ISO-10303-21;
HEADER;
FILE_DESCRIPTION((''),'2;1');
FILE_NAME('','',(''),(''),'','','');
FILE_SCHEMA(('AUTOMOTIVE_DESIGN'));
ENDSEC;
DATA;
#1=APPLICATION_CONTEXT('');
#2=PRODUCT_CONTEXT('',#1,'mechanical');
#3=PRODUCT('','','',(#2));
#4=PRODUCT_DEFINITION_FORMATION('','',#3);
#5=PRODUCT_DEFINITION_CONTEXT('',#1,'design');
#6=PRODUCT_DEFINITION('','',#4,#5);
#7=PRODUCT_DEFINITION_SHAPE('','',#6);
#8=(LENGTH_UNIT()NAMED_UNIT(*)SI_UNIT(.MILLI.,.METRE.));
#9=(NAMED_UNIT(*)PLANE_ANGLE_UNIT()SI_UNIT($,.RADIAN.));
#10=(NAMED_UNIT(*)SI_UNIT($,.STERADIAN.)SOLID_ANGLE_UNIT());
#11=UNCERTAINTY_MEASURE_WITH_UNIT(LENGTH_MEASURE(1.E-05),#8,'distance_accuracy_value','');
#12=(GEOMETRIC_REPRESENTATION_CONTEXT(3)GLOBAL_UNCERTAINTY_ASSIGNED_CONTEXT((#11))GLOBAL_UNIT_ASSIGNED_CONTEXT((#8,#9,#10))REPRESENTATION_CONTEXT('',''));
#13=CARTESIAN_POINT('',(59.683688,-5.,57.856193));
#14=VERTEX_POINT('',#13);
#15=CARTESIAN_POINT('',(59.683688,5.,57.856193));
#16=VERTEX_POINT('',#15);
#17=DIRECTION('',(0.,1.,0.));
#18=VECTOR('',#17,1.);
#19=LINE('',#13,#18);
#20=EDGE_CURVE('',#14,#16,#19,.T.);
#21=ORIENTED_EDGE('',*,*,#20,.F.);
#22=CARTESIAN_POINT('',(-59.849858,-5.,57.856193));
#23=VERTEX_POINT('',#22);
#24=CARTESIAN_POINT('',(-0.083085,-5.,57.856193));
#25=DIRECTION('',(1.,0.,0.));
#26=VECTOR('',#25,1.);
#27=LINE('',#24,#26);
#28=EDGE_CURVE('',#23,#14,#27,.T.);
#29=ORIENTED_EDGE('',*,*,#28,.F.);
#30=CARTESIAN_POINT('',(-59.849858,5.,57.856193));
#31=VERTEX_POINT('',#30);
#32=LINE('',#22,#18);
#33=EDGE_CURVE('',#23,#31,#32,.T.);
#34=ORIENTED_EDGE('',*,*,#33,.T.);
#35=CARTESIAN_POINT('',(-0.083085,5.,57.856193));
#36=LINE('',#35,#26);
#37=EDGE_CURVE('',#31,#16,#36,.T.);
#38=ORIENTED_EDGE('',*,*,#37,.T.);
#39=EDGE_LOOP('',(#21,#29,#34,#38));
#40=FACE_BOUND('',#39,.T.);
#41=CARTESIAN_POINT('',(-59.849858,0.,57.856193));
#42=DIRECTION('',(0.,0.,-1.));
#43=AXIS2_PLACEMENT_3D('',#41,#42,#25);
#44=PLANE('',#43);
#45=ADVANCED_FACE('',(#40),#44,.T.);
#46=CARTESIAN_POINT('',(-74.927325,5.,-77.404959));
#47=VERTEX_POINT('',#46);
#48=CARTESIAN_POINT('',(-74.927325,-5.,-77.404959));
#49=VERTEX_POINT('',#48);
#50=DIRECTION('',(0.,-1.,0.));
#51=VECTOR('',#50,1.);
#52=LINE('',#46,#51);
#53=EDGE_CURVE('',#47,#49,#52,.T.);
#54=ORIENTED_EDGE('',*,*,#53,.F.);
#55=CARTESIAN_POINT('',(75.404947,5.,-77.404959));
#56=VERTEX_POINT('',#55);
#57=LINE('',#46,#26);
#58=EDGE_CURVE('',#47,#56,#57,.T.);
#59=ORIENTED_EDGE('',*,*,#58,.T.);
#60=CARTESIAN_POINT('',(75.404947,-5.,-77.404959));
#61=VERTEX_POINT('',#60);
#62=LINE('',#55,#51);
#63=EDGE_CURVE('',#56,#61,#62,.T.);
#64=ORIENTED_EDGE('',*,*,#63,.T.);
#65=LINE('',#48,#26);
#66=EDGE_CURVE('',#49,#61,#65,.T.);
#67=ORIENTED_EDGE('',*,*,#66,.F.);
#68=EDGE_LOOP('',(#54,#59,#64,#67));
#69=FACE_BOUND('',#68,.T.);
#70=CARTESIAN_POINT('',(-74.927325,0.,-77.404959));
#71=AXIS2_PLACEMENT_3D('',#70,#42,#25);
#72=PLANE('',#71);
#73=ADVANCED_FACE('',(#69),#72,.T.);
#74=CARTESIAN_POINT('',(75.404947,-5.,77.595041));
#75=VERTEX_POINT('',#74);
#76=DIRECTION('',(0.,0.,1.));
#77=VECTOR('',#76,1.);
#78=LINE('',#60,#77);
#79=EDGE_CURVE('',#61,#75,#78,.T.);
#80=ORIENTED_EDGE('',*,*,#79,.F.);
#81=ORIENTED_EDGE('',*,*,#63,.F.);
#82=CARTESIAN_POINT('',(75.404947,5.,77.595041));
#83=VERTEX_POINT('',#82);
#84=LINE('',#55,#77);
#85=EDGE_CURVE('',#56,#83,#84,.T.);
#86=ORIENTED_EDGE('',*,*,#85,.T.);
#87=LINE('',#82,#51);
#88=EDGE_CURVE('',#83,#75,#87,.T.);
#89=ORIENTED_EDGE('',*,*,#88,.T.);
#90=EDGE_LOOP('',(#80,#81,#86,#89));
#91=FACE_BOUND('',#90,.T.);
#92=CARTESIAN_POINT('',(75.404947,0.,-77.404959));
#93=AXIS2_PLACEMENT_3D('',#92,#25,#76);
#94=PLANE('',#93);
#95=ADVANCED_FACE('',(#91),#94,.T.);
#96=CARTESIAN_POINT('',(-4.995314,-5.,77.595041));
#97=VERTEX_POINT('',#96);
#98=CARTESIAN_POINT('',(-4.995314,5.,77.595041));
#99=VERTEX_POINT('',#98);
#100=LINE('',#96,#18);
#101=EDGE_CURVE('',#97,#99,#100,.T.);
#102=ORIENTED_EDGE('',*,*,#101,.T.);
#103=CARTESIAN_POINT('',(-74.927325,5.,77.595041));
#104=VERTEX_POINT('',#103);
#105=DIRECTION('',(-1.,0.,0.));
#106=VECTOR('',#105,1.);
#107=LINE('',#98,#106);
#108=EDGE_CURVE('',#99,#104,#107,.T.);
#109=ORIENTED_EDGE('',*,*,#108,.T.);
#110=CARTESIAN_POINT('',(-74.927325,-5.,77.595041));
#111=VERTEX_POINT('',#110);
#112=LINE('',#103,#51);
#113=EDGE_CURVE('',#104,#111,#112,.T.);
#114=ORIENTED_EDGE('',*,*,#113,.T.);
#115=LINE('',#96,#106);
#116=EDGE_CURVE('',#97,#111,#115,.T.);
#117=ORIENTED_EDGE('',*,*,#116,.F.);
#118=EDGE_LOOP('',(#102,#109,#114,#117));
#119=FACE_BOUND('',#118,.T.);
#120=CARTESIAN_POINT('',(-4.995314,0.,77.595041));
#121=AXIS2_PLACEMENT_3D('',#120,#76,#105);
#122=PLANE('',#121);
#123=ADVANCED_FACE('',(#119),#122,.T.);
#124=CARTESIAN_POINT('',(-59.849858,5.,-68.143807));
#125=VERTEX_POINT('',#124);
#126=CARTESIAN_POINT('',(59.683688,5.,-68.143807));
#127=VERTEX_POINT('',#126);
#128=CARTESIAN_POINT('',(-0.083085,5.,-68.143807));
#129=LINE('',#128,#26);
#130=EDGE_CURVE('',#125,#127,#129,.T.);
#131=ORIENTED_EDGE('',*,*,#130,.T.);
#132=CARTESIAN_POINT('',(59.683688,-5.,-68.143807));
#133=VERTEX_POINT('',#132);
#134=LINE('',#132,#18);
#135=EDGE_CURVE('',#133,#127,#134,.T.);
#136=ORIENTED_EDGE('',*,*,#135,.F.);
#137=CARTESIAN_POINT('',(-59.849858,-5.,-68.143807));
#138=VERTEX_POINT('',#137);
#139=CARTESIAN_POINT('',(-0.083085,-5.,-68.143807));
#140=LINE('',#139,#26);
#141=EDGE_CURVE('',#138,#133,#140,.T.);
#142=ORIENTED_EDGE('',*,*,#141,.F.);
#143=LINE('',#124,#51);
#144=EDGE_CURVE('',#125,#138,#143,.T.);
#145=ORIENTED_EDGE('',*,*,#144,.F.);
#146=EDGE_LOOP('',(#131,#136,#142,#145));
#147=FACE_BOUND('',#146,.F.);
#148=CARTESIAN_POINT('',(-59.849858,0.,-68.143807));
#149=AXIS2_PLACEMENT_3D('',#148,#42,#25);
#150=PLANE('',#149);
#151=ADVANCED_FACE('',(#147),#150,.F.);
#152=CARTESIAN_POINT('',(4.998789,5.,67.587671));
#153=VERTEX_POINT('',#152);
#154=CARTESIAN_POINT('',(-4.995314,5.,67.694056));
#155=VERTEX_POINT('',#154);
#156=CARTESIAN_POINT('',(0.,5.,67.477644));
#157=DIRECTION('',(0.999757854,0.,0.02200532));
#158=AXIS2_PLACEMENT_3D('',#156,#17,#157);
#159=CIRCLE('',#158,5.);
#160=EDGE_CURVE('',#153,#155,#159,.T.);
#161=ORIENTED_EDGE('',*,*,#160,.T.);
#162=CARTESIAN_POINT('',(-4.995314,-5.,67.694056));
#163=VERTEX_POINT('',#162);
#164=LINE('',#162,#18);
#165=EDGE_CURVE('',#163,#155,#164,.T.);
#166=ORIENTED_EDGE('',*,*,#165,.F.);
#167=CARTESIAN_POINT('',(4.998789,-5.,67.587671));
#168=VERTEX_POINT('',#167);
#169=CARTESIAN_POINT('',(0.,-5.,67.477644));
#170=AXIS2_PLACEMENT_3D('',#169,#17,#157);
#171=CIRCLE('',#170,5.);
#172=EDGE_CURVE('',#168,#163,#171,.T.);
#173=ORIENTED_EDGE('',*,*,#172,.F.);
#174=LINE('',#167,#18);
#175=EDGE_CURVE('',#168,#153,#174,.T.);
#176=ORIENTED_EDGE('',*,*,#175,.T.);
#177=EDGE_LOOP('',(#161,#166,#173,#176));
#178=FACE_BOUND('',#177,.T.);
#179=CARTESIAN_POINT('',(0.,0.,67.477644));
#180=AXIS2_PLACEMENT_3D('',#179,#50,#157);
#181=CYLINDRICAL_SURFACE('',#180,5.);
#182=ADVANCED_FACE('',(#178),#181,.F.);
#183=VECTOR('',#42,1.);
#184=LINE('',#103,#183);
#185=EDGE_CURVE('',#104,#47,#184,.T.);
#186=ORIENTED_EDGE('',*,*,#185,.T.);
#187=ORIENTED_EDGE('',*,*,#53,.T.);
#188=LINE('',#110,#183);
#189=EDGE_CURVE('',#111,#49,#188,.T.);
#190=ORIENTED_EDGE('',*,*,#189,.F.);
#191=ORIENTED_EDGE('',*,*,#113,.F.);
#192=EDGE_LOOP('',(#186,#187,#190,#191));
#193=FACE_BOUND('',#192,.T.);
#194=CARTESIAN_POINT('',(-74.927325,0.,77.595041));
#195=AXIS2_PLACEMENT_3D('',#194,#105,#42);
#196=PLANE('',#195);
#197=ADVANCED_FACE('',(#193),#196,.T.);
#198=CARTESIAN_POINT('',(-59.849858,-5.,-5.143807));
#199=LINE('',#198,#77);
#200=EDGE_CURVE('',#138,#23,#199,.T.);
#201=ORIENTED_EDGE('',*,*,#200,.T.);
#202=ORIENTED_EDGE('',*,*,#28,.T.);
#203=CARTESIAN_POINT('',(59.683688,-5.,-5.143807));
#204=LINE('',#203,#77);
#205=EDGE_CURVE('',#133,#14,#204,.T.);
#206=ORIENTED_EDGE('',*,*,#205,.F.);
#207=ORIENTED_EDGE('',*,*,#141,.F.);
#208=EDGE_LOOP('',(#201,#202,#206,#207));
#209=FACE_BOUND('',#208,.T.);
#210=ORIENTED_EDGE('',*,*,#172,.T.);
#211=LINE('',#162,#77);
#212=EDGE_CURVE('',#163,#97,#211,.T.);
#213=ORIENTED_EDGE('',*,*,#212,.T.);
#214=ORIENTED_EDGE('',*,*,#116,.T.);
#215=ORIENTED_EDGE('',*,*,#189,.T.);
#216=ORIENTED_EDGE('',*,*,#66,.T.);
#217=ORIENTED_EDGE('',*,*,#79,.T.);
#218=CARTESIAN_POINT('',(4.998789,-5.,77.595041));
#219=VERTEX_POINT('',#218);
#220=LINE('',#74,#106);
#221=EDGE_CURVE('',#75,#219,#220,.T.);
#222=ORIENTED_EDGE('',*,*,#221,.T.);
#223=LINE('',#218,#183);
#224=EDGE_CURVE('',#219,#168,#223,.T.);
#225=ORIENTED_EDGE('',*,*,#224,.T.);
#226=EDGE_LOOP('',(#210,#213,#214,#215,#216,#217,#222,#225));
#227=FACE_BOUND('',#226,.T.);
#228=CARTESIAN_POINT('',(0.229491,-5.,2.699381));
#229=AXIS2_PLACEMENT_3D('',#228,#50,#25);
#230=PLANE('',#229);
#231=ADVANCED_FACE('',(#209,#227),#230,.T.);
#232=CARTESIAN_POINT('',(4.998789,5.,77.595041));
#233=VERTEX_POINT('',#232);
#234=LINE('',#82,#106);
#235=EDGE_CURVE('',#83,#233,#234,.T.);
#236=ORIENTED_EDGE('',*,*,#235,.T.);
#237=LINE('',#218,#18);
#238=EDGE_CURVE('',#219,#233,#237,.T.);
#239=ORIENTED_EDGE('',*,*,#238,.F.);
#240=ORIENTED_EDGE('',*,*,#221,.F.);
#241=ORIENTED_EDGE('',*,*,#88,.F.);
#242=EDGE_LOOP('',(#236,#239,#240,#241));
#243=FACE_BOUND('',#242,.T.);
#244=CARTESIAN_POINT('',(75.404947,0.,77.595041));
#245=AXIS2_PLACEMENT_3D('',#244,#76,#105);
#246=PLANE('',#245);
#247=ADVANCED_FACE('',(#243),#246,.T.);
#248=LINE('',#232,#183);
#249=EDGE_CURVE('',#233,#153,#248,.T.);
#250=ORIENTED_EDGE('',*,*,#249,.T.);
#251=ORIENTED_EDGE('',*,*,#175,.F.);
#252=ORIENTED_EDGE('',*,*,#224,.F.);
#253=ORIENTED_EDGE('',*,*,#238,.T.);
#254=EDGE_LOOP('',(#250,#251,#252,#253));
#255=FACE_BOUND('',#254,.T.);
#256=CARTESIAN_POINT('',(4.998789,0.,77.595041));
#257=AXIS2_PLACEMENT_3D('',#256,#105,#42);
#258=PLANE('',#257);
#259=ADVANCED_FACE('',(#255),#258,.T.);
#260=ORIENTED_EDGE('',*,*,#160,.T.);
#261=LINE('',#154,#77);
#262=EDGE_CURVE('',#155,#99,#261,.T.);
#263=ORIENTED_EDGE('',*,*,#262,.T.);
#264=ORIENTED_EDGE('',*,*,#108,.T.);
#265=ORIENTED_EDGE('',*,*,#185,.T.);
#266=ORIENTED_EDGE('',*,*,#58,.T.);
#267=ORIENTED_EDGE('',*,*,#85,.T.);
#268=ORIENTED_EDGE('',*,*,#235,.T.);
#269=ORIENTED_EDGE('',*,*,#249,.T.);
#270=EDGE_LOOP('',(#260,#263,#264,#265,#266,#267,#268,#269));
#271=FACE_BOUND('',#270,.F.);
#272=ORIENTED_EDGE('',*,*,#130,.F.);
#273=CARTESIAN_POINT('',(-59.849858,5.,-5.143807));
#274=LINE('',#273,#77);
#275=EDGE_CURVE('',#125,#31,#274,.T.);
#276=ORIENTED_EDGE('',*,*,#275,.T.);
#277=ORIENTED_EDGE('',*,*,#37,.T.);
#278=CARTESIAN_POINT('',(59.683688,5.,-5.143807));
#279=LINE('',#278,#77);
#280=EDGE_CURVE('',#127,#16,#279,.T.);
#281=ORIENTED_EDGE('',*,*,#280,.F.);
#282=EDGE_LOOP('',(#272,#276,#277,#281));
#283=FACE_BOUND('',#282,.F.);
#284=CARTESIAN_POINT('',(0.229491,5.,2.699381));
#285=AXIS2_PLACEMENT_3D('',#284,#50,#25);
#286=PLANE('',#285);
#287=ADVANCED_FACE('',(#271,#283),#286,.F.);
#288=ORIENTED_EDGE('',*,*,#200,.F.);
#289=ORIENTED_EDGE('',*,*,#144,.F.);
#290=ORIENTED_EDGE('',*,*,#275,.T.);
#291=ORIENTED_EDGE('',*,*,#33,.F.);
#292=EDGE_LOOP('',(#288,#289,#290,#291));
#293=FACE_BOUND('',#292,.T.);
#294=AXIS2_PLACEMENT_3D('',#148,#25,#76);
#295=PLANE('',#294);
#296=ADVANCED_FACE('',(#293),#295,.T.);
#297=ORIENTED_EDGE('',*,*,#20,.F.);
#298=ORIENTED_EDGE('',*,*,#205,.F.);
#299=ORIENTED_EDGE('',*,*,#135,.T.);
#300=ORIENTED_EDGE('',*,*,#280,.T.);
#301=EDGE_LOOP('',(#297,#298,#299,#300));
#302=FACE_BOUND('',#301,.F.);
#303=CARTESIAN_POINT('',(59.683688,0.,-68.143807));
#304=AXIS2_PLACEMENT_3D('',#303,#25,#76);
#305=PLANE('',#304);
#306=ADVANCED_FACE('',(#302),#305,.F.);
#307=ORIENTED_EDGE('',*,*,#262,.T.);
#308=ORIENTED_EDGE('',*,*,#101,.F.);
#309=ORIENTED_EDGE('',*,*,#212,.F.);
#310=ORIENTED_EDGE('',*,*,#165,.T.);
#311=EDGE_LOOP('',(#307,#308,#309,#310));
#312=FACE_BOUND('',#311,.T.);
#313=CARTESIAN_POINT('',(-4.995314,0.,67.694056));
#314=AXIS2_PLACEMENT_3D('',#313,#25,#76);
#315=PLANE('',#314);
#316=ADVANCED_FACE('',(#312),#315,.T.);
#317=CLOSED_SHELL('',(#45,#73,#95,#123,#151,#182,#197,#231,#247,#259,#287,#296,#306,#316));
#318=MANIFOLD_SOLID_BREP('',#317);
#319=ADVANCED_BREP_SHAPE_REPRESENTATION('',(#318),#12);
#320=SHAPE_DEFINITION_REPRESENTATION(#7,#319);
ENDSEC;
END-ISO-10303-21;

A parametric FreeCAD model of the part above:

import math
import FreeCAD as App
import Part
import Sketcher

doc = App.newDocument("Part")
body = doc.addObject("PartDesign::Body", "Body")

# Sketch on XZ plane
sketch1 = doc.addObject("Sketcher::SketchObject", "Sketch")
body.addObject(sketch1)
sketch1.AttachmentSupport = (doc.XZ_Plane, [""])
sketch1.MapMode = "FlatFace"
sketch1.addGeometry([
    Part.LineSegment(App.Vector(-4.995314, 77.595041, 0), App.Vector(-74.927325, 77.595041, 0)),  # 0
    Part.LineSegment(App.Vector(-74.927325, 77.595041, 0), App.Vector(-74.927325, -77.404959, 0)),  # 1
    Part.LineSegment(App.Vector(-74.927325, -77.404959, 0), App.Vector(75.404947, -77.404959, 0)),  # 2
    Part.LineSegment(App.Vector(75.404947, -77.404959, 0), App.Vector(75.404947, 77.595041, 0)),  # 3
    Part.LineSegment(App.Vector(75.404947, 77.595041, 0), App.Vector(4.998789, 77.595041, 0)),  # 4
    Part.LineSegment(App.Vector(4.998789, 77.595041, 0), App.Vector(4.998789, 67.587671, 0)),  # 5
    Part.ArcOfCircle(Part.Circle(App.Vector(0, 67.477644, 0), App.Vector(0, 0, 1), 5), math.radians(177.519331), math.radians(361.260914)),  # 6
    Part.LineSegment(App.Vector(-4.995314, 67.694056, 0), App.Vector(-4.995314, 77.595041, 0)),  # 7
    Part.LineSegment(App.Vector(59.683688, -68.143807, 0), App.Vector(-59.849858, -68.143807, 0)),  # 8
    Part.LineSegment(App.Vector(-59.849858, -68.143807, 0), App.Vector(-59.849858, 57.856193, 0)),  # 9
    Part.LineSegment(App.Vector(-59.849858, 57.856193, 0), App.Vector(59.683688, 57.856193, 0)),  # 10
    Part.LineSegment(App.Vector(59.683688, 57.856193, 0), App.Vector(59.683688, -68.143807, 0)),  # 11
], False)
sketch1.addConstraint([
    Sketcher.Constraint("Coincident", 0, 2, 1, 1),
    Sketcher.Constraint("Coincident", 1, 2, 2, 1),
    Sketcher.Constraint("Coincident", 2, 2, 3, 1),
    Sketcher.Constraint("Coincident", 3, 2, 4, 1),
    Sketcher.Constraint("Coincident", 4, 2, 5, 1),
    Sketcher.Constraint("Coincident", 5, 2, 6, 2),
    Sketcher.Constraint("Coincident", 6, 1, 7, 1),
    Sketcher.Constraint("Coincident", 7, 2, 0, 1),
    Sketcher.Constraint("Coincident", 8, 2, 9, 1),
    Sketcher.Constraint("Coincident", 9, 2, 10, 1),
    Sketcher.Constraint("Coincident", 10, 2, 11, 1),
    Sketcher.Constraint("Coincident", 11, 2, 8, 1),
    Sketcher.Constraint("Horizontal", 0),
    Sketcher.Constraint("Vertical", 1),
    Sketcher.Constraint("Horizontal", 2),
    Sketcher.Constraint("Vertical", 3),
    Sketcher.Constraint("Horizontal", 4),
    Sketcher.Constraint("Vertical", 5),
    Sketcher.Constraint("Vertical", 7),
    Sketcher.Constraint("Horizontal", 8),
    Sketcher.Constraint("Vertical", 9),
    Sketcher.Constraint("Horizontal", 10),
    Sketcher.Constraint("Vertical", 11),
    Sketcher.Constraint("PointOnObject", 6, 3, -2),
    Sketcher.Constraint("Horizontal", 0, 2, 3, 2),
    Sketcher.Constraint("Radius", 6, 5.0),
    Sketcher.Constraint("DistanceY", 1, 2, 1, 1, 155.0),
    Sketcher.Constraint("DistanceY", 9, 1, 9, 2, 126.0),
    Sketcher.Constraint("DistanceX", 0, 2, 0, 1, 69.932011),
    Sketcher.Constraint("DistanceX", 2, 1, 2, 2, 150.332272),
    Sketcher.Constraint("DistanceX", 4, 2, 4, 1, 70.406158),
    Sketcher.Constraint("DistanceY", 5, 2, 5, 1, 10.00737),
    Sketcher.Constraint("DistanceX", 5, 2, 10, 2, 54.684899),
    Sketcher.Constraint("DistanceX", 8, 2, 8, 1, 119.533546),
    Sketcher.Constraint("DistanceY", 7, 1, 7, 2, 9.900985),
    Sketcher.Constraint("DistanceY", -1, 1, 0, 2, 77.595041),
    Sketcher.Constraint("DistanceY", 8, 2, 6, 3, 135.621451),
])
pad1 = doc.addObject("PartDesign::Pad", "Pad")
body.addObject(pad1)
pad1.Profile = sketch1
pad1.Length = 10
pad1.Midplane = True

doc.recompute()
